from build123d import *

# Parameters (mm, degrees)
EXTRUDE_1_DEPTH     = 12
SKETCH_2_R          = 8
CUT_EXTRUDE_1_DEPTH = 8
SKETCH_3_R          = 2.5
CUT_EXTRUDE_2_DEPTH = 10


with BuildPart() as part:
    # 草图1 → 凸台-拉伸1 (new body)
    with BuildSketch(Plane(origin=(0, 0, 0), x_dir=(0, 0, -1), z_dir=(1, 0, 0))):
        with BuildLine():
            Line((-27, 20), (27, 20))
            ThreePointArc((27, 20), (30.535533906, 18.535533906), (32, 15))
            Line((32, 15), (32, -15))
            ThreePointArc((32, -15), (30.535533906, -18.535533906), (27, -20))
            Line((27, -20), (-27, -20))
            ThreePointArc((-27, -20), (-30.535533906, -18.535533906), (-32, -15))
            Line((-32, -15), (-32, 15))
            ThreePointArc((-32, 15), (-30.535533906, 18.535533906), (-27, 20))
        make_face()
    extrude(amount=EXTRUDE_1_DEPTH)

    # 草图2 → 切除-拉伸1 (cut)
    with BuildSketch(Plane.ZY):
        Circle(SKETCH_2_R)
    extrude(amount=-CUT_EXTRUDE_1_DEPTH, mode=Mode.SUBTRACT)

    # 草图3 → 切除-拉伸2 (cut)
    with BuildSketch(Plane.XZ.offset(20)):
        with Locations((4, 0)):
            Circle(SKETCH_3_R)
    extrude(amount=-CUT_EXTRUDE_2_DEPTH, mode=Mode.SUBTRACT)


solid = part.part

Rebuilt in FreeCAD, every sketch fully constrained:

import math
import FreeCAD as App
import Part
import Sketcher

doc = App.newDocument("Part")
body = doc.addObject("PartDesign::Body", "Body")

# Sketch on YZ plane
sketch1 = body.newObject("Sketcher::SketchObject", "Sketch")
sketch1.AttachmentSupport = (doc.getObject("YZ_Plane"), [""])
sketch1.MapMode = "FlatFace"
sketch1.addGeometry([
    Part.LineSegment(App.Vector(20, -27, 0), App.Vector(20, 27, 0)),  # 0
    Part.ArcOfCircle(Part.Circle(App.Vector(15, 27, 0), App.Vector(0, 0, 1), 5), math.radians(0), math.radians(90)),  # 1
    Part.LineSegment(App.Vector(15, 32, 0), App.Vector(-15, 32, 0)),  # 2
    Part.ArcOfCircle(Part.Circle(App.Vector(-15, 27, 0), App.Vector(0, 0, 1), 5), math.radians(90), math.radians(180)),  # 3
    Part.LineSegment(App.Vector(-20, 27, 0), App.Vector(-20, -27, 0)),  # 4
    Part.ArcOfCircle(Part.Circle(App.Vector(-15, -27, 0), App.Vector(0, 0, 1), 5), math.radians(180), math.radians(270)),  # 5
    Part.LineSegment(App.Vector(-15, -32, 0), App.Vector(15, -32, 0)),  # 6
    Part.ArcOfCircle(Part.Circle(App.Vector(15, -27, 0), App.Vector(0, 0, 1), 5), math.radians(-90), math.radians(0)),  # 7
], False)
sketch1.addConstraint([
    Sketcher.Constraint("Tangent", 0, 2, 1, 1),
    Sketcher.Constraint("Tangent", 1, 2, 2, 1),
    Sketcher.Constraint("Tangent", 2, 2, 3, 1),
    Sketcher.Constraint("Tangent", 3, 2, 4, 1),
    Sketcher.Constraint("Tangent", 4, 2, 5, 1),
    Sketcher.Constraint("Tangent", 5, 2, 6, 1),
    Sketcher.Constraint("Tangent", 6, 2, 7, 1),
    Sketcher.Constraint("Tangent", 7, 2, 0, 1),
    Sketcher.Constraint("Vertical", 0),
    Sketcher.Constraint("Horizontal", 2),
    Sketcher.Constraint("Vertical", 4),
    Sketcher.Constraint("Horizontal", 6),
    Sketcher.Constraint("Equal", 1, 3),
    Sketcher.Constraint("Equal", 3, 5),
    Sketcher.Constraint("Equal", 5, 7),
    Sketcher.Constraint("Symmetric", 1, 3, 5, 3, -1, 1),
    Sketcher.Constraint("Radius", 1, 5.0),
    Sketcher.Constraint("DistanceX", 2, 2, 2, 1, 30.0),
    Sketcher.Constraint("DistanceY", 0, 1, 0, 2, 54.0),
])
pad1 = body.newObject("PartDesign::Pad", "Pad")
pad1.Profile = sketch1
pad1.Length = 12

# Sketch on YZ plane
sketch2 = body.newObject("Sketcher::SketchObject", "Sketch001")
sketch2.AttachmentSupport = (doc.getObject("YZ_Plane"), [""])
sketch2.MapMode = "FlatFace"
sketch2.addGeometry(Part.Circle(App.Vector(0, 0, 0), App.Vector(0, 0, 1), 8), False)
sketch2.addConstraint([
    Sketcher.Constraint("Coincident", 0, 3, -1, 1),
    Sketcher.Constraint("Diameter", 0, 16.0),
])
pocket1 = body.newObject("PartDesign::Pocket", "Pocket")
pocket1.Profile = sketch2
pocket1.Length = 8
pocket1.Reversed = True

# Sketch on XZ plane
sketch3 = body.newObject("Sketcher::SketchObject", "Sketch002")
sketch3.AttachmentSupport = (doc.getObject("XZ_Plane"), [""])
sketch3.MapMode = "FlatFace"
sketch3.AttachmentOffset = App.Placement(App.Vector(0, 0, 20), App.Rotation())
sketch3.addGeometry(Part.Circle(App.Vector(4, 0, 0), App.Vector(0, 0, 1), 2.5), False)
sketch3.addConstraint([
    Sketcher.Constraint("PointOnObject", 0, 3, -1),
    Sketcher.Constraint("Diameter", 0, 5.0),
    Sketcher.Constraint("DistanceX", -1, 1, 0, 3, 4.0),
])
pocket2 = body.newObject("PartDesign::Pocket", "Pocket001")
pocket2.Profile = sketch3
pocket2.Length = 10

doc.recompute()
